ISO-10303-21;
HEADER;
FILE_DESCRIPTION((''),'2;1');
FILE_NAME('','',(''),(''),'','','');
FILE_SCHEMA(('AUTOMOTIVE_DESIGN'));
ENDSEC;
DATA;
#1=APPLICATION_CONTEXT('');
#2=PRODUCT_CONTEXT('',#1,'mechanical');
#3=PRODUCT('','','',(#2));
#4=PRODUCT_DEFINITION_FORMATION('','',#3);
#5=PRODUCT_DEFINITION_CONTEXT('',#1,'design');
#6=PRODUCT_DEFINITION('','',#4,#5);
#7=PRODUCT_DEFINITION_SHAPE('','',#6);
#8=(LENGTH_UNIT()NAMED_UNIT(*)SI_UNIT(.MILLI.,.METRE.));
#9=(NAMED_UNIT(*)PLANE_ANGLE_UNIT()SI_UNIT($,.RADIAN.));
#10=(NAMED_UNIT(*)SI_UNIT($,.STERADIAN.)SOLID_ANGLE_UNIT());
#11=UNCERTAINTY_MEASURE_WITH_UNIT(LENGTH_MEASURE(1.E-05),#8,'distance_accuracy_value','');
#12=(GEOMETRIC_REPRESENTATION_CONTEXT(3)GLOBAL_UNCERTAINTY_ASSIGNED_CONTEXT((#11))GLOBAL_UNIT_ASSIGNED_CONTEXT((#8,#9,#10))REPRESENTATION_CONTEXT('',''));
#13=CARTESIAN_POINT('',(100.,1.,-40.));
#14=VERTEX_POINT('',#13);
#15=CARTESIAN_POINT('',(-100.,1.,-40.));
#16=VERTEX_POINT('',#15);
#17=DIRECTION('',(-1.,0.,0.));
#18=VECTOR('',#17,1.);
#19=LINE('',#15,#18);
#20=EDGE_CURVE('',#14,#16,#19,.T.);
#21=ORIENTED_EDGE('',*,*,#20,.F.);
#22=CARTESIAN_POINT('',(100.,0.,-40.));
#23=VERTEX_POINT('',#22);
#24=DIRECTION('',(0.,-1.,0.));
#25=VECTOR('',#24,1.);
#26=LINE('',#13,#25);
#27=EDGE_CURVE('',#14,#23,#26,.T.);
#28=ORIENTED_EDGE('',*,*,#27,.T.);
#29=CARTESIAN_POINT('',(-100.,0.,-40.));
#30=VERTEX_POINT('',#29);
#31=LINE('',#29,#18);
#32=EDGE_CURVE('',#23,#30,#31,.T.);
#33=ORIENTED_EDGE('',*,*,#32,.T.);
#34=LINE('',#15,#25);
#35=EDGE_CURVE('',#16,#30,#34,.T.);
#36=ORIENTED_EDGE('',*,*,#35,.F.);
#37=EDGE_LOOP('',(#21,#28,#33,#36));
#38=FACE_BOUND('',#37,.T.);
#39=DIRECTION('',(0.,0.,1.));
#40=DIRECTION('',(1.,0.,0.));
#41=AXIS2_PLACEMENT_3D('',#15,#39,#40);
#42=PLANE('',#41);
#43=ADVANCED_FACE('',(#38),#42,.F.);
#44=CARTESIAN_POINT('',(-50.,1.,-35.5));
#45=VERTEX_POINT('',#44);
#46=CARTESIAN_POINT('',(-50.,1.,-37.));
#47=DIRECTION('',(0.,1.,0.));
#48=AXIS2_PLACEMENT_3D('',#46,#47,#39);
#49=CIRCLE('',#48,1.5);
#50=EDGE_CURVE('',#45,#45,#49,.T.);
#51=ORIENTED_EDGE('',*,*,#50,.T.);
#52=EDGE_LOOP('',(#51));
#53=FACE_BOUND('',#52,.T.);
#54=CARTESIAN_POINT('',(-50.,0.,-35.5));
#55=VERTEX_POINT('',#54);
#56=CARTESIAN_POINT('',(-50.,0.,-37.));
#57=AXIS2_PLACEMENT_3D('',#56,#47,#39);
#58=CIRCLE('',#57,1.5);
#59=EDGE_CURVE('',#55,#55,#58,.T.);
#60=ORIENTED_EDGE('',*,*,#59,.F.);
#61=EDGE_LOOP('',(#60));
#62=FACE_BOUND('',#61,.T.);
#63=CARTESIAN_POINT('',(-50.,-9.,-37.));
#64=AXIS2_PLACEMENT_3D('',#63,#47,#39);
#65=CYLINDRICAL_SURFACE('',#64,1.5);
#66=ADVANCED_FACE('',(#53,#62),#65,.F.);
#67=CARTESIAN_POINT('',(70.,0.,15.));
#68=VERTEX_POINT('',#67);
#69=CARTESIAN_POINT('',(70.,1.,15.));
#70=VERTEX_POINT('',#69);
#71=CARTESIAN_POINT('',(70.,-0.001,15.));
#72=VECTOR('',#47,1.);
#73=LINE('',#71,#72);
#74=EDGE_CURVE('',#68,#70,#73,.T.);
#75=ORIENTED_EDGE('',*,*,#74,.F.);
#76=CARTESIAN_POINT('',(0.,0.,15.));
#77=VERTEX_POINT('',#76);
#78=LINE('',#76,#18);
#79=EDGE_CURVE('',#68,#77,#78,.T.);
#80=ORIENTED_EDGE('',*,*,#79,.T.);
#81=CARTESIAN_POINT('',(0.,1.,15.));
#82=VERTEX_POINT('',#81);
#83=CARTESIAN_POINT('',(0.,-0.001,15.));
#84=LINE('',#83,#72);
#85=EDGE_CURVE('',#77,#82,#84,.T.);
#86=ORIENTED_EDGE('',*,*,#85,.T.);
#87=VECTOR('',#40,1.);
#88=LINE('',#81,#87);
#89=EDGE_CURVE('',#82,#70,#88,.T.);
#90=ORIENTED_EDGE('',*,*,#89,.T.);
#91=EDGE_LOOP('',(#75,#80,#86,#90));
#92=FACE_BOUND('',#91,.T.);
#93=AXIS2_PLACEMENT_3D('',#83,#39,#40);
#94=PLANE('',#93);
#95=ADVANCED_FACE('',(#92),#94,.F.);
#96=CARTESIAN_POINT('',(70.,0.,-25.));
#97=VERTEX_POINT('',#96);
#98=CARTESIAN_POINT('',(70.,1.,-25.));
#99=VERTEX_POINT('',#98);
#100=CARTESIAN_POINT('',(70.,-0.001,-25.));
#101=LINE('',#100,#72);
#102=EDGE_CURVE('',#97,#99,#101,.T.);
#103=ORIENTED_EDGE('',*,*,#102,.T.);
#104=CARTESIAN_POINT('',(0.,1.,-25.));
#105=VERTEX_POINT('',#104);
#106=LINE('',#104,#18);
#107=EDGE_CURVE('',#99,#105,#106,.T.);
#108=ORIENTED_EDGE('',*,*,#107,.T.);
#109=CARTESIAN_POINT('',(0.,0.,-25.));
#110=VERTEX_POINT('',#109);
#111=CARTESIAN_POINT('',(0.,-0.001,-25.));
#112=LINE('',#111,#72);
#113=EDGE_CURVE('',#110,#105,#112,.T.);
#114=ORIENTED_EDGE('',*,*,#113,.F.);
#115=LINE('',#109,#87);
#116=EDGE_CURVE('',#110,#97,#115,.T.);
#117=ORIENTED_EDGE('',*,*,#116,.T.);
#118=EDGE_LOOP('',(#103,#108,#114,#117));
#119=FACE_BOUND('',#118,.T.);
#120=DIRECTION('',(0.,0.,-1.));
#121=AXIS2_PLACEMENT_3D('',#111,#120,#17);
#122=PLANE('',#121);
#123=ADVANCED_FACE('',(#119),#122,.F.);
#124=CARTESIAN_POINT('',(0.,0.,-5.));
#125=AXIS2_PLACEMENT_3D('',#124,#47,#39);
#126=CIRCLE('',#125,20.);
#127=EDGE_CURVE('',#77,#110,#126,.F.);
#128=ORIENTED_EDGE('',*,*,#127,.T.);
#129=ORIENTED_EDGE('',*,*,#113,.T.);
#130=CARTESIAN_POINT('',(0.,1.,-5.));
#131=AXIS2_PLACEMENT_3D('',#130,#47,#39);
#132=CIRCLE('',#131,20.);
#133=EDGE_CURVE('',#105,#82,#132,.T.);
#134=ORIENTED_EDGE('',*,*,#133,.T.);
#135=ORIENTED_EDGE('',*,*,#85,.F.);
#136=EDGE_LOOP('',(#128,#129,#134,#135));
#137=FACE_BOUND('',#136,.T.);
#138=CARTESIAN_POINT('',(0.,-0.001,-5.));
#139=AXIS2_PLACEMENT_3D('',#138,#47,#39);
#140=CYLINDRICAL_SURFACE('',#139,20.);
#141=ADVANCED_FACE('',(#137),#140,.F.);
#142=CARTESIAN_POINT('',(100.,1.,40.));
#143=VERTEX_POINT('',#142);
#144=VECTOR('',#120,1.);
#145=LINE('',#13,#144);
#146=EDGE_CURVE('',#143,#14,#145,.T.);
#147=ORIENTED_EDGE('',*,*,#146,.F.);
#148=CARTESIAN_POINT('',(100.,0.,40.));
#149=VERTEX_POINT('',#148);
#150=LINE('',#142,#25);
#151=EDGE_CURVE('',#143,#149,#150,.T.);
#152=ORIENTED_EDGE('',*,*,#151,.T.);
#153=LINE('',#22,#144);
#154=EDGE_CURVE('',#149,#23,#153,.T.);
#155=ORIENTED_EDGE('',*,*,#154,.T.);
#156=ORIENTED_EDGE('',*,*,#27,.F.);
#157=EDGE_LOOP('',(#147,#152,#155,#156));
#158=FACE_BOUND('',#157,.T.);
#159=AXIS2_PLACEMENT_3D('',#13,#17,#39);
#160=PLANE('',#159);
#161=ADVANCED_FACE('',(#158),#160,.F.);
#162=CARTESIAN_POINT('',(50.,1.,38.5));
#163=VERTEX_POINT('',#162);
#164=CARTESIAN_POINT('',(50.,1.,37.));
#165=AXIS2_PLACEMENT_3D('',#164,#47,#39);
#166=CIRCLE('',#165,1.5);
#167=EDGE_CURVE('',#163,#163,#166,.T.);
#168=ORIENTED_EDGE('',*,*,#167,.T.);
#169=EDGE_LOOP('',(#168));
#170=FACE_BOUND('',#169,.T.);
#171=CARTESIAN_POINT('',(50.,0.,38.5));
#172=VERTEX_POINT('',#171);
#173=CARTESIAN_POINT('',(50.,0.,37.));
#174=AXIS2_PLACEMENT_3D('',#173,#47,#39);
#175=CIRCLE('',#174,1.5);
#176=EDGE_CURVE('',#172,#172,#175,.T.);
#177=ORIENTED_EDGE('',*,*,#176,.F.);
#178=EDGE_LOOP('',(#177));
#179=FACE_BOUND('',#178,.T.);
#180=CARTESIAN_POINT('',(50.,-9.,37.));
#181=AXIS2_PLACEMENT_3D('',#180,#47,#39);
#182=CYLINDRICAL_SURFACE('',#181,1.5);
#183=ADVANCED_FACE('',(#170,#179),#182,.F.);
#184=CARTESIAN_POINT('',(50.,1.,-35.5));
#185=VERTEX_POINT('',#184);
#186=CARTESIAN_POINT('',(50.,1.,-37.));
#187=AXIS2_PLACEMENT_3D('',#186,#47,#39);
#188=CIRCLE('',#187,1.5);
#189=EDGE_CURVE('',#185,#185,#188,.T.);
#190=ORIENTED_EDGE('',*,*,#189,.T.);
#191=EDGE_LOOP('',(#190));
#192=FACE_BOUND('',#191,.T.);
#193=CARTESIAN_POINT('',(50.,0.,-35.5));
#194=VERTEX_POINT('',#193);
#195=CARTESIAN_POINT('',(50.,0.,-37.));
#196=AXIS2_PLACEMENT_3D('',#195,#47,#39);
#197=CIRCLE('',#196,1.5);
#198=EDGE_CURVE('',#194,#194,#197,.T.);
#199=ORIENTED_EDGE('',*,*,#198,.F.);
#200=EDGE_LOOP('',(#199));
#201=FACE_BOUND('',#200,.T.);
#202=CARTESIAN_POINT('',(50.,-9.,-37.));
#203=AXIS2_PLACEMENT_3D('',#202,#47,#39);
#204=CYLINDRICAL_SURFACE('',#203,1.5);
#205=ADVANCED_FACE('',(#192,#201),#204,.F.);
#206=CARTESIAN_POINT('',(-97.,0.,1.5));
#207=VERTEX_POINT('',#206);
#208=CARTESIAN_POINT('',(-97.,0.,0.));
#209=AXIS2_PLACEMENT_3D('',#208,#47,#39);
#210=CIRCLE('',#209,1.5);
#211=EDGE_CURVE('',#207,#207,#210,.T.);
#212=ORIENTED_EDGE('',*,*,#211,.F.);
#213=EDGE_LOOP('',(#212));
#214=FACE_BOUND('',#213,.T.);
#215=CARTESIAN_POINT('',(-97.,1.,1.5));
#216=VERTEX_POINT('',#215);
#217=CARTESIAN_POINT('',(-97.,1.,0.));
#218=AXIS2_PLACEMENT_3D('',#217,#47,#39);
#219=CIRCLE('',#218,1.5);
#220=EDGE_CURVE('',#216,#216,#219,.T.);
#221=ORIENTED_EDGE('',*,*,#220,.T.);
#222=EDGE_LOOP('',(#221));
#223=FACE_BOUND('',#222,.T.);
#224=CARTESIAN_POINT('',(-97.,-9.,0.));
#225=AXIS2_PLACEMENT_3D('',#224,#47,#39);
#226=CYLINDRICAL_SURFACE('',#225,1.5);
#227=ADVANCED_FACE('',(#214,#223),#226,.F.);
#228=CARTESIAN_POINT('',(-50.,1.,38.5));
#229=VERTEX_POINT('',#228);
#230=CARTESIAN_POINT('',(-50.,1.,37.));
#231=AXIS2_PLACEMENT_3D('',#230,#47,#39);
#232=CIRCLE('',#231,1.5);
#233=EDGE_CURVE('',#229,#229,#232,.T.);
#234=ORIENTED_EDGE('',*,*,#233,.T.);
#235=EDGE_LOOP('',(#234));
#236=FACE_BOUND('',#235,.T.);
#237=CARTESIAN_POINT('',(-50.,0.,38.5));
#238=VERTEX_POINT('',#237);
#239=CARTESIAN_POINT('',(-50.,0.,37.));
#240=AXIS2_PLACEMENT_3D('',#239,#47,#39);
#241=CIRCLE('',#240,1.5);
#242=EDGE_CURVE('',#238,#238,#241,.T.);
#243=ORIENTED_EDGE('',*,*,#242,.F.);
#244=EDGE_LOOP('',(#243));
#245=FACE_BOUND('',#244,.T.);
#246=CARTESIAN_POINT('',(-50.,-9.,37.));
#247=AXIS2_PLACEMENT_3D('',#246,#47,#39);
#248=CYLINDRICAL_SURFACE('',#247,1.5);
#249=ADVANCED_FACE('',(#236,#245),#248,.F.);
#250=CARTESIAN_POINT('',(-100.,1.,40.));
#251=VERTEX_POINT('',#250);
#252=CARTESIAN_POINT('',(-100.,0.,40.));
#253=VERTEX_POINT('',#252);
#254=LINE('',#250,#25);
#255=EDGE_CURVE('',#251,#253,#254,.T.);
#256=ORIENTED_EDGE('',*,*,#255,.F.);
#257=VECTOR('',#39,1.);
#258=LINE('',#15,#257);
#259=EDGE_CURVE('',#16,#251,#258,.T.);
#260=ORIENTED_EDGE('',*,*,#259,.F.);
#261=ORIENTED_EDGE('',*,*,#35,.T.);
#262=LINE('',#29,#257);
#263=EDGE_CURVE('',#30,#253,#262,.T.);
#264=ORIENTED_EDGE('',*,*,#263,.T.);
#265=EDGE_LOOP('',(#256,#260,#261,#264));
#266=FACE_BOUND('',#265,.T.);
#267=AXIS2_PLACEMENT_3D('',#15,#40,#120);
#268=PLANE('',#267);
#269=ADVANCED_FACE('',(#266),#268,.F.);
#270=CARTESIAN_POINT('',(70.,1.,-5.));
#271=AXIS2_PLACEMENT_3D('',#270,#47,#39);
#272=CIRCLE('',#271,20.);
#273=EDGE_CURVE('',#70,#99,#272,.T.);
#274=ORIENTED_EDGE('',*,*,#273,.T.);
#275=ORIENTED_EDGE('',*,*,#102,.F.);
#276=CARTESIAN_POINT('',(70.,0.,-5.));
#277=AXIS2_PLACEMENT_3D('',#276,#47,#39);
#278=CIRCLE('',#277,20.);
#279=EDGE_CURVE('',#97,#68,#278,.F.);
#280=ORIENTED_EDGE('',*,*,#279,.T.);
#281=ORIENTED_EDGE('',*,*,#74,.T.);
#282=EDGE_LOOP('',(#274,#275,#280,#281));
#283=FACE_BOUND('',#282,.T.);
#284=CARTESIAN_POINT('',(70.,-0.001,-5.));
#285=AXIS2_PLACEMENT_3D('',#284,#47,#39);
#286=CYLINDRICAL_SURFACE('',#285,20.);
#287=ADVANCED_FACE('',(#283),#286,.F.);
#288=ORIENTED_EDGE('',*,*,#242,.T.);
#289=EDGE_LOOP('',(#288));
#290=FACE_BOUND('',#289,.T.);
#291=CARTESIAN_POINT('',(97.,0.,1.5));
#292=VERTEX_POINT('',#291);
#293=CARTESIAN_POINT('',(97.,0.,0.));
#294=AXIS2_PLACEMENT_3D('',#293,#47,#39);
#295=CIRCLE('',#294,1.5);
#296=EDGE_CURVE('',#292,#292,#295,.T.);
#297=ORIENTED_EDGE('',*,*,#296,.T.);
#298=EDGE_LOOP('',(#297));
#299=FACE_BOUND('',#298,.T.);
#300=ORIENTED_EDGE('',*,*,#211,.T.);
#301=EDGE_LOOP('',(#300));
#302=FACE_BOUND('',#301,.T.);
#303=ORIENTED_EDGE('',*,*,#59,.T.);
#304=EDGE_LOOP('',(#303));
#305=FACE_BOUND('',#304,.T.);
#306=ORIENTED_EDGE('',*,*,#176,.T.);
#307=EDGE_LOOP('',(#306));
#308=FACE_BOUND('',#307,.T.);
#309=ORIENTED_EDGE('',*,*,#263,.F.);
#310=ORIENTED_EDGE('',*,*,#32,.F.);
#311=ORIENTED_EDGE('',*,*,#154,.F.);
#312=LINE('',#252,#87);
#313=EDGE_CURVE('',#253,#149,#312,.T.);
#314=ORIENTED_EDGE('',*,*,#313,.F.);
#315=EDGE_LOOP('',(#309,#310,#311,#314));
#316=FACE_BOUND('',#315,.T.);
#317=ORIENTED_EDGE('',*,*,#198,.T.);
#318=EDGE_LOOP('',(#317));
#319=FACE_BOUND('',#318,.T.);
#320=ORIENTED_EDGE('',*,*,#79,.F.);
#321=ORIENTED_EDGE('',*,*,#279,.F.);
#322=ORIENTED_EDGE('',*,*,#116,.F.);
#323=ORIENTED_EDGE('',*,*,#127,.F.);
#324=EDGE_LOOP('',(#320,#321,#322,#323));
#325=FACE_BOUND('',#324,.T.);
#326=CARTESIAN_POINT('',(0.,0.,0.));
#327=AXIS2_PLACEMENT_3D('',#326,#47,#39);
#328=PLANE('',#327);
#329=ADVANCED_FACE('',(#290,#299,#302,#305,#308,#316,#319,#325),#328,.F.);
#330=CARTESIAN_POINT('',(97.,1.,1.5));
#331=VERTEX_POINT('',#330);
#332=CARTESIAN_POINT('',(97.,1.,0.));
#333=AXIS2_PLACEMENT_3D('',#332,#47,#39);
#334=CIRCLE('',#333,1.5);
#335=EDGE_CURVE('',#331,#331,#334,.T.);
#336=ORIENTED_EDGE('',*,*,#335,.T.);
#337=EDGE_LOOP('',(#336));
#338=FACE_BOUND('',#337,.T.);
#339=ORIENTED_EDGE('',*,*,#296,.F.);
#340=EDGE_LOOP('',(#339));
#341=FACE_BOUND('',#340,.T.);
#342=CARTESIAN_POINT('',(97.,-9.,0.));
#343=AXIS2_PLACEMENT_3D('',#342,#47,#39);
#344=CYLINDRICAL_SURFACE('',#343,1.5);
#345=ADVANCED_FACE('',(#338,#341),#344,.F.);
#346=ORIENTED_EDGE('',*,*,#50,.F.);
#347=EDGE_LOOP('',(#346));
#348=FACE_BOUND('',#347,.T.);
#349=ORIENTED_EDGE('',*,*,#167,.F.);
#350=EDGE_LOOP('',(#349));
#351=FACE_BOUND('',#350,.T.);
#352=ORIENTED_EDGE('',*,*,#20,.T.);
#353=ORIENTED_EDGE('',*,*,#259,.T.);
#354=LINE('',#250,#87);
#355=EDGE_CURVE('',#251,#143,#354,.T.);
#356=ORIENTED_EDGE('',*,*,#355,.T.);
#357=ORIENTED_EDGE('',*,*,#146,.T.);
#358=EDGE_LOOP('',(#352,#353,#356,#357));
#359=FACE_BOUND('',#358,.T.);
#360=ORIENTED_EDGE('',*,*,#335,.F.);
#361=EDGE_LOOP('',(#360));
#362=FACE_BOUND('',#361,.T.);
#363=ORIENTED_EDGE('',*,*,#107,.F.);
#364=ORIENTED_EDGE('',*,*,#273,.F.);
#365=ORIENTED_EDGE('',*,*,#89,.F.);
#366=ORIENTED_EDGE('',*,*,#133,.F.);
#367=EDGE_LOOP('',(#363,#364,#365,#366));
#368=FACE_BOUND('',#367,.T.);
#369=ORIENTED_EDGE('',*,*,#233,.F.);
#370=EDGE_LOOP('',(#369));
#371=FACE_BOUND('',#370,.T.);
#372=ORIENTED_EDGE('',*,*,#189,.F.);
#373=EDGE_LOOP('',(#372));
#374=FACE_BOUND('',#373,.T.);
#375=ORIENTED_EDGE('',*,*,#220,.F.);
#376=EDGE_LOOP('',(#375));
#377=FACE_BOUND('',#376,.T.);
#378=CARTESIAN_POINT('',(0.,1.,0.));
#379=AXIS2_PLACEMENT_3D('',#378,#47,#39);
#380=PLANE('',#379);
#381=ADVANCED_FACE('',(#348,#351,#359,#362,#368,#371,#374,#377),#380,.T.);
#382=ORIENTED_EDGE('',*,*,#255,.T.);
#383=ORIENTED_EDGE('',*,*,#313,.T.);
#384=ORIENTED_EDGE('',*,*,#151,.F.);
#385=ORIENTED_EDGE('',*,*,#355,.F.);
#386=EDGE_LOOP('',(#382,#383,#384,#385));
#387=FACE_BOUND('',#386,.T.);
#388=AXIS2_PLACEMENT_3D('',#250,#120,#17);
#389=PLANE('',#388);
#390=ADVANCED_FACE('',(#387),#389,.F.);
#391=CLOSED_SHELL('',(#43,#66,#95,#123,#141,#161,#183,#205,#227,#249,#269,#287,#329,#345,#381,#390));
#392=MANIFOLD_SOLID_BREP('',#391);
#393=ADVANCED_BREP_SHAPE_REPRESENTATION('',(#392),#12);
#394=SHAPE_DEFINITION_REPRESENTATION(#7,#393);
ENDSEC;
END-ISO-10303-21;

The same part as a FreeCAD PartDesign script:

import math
import FreeCAD as App
import Part
import Sketcher

V = App.Vector
Q = App.Units.Quantity

doc = App.newDocument("Part")
params = doc.addObject("Spreadsheet::Sheet", "Params")
for row, (alias, value) in enumerate([
    ("sketch1_width", "200 mm"),
    ("sketch1_height", "80 mm"),
    ("pad1_length", "1 mm"),
    ("sketch2_radius", "20 mm"),
    ("sketch2_width", "70 mm"),
    ("sketch3_diameter", "3 mm"),
    ("pocket2_length", "10 mm"),
], start=1):
    params.set(f"A{row}", alias)
    params.set(f"B{row}", "=" + value)
    params.setAlias(f"B{row}", alias)

body = doc.addObject("PartDesign::Body", "Body")

# Sketch on XZ plane
sketch1 = doc.addObject("Sketcher::SketchObject", "Sketch")
body.addObject(sketch1)
sketch1.AttachmentSupport = (doc.XZ_Plane, [""])
sketch1.MapMode = "FlatFace"
sketch1.addGeometry([
    Part.LineSegment(V(-100, -40, 0), V(-100, 40, 0)),
    Part.LineSegment(V(-100, 40, 0), V(100, 40, 0)),
    Part.LineSegment(V(100, 40, 0), V(100, -40, 0)),
    Part.LineSegment(V(100, -40, 0), V(-100, -40, 0)),
], False)
sketch1.addConstraint([
    Sketcher.Constraint("Coincident", 0, 2, 1, 1),
    Sketcher.Constraint("Coincident", 1, 2, 2, 1),
    Sketcher.Constraint("Coincident", 2, 2, 3, 1),
    Sketcher.Constraint("Coincident", 3, 2, 0, 1),
    Sketcher.Constraint("Vertical", 0),
    Sketcher.Constraint("Horizontal", 1),
    Sketcher.Constraint("Vertical", 2),
    Sketcher.Constraint("Horizontal", 3),
    Sketcher.Constraint("Symmetric", 0, 2, 2, 2, -1, 1),
    Sketcher.Constraint("DistanceX", 1, 1, 1, 2, Q("200 mm")),
    Sketcher.Constraint("DistanceY", 0, 1, 0, 2, Q("80 mm")),
])
sketch1.setExpression("Constraints[9]", "Params.sketch1_width")
sketch1.setExpression("Constraints[10]", "Params.sketch1_height")
pad1 = doc.addObject("PartDesign::Pad", "Pad")
body.addObject(pad1)
pad1.Profile = sketch1
pad1.setExpression("Length", "Params.pad1_length")
pad1.Reversed = True

# Sketch on XZ plane
sketch2 = doc.addObject("Sketcher::SketchObject", "Sketch001")
body.addObject(sketch2)
sketch2.AttachmentSupport = (doc.XZ_Plane, [""])
sketch2.MapMode = "FlatFace"
sketch2.AttachmentOffset = App.Placement(V(0, 0, -1), App.Rotation())
sketch2.addGeometry([
    Part.LineSegment(V(70, -25, 0), V(0, -25, 0)),
    Part.ArcOfCircle(Part.Circle(V(0, -5, 0), V(0, 0, 1), 20), math.radians(90), math.radians(270)),
    Part.LineSegment(V(0, 15, 0), V(70, 15, 0)),
    Part.ArcOfCircle(Part.Circle(V(70, -5, 0), V(0, 0, 1), 20), math.radians(-90), math.radians(90)),
], False)
sketch2.addConstraint([
    Sketcher.Constraint("Tangent", 0, 2, 1, 2),
    Sketcher.Constraint("Tangent", 1, 1, 2, 1),
    Sketcher.Constraint("Tangent", 2, 2, 3, 2),
    Sketcher.Constraint("Tangent", 3, 1, 0, 1),
    Sketcher.Constraint("Horizontal", 0),
    Sketcher.Constraint("Horizontal", 2),
    Sketcher.Constraint("PointOnObject", 1, 3, -2),
    Sketcher.Constraint("Radius", 1, Q("20 mm")),
    Sketcher.Constraint("DistanceX", 0, 2, 0, 1, Q("70 mm")),
    Sketcher.Constraint("DistanceY", 1, 3, -1, 1, Q("5 mm")),
])
sketch2.setExpression("Constraints[7]", "Params.sketch2_radius")
sketch2.setExpression("Constraints[8]", "Params.sketch2_width")
pocket1 = doc.addObject("PartDesign::Pocket", "Pocket")
body.addObject(pocket1)
pocket1.Profile = sketch2
pocket1.Type = "UpToFirst"
pocket1.Reversed = True

# Sketch on XZ plane
sketch3 = doc.addObject("Sketcher::SketchObject", "Sketch002")
body.addObject(sketch3)
sketch3.AttachmentSupport = (doc.XZ_Plane, [""])
sketch3.MapMode = "FlatFace"
sketch3.AttachmentOffset = App.Placement(V(0, 0, -1), App.Rotation())
sketch3.addGeometry([
    Part.Circle(V(-50, -37, 0), V(0, 0, 1), 1.5),  # 0
    Part.Circle(V(50, -37, 0), V(0, 0, 1), 1.5),  # 1
    Part.Circle(V(50, 37, 0), V(0, 0, 1), 1.5),  # 2
    Part.Circle(V(-50, 37, 0), V(0, 0, 1), 1.5),  # 3
    Part.Circle(V(-97, 0, 0), V(0, 0, 1), 1.5),  # 4
    Part.Circle(V(97, 0, 0), V(0, 0, 1), 1.5),  # 5
], False)
sketch3.addConstraint([
    Sketcher.Constraint("Equal", 0, 1),
    Sketcher.Constraint("Equal", 1, 2),
    Sketcher.Constraint("Equal", 2, 3),
    Sketcher.Constraint("Equal", 3, 4),
    Sketcher.Constraint("Equal", 4, 5),
    Sketcher.Constraint("Symmetric", 0, 3, 2, 3, -1, 1),
    Sketcher.Constraint("Symmetric", 1, 3, 3, 3, -1, 1),
    Sketcher.Constraint("Symmetric", 4, 3, 5, 3, -1, 1),
    Sketcher.Constraint("Symmetric", 0, 3, 1, 3, -2),
    Sketcher.Constraint("PointOnObject", 4, 3, -1),
    Sketcher.Constraint("Diameter", 0, Q("3 mm")),
    Sketcher.Constraint("DistanceX", 0, 3, -1, 1, Q("50 mm")),
    Sketcher.Constraint("DistanceY", 0, 3, -1, 1, Q("37 mm")),
    Sketcher.Constraint("DistanceX", 4, 3, -1, 1, Q("97 mm")),
])
sketch3.setExpression("Constraints[10]", "Params.sketch3_diameter")
pocket2 = doc.addObject("PartDesign::Pocket", "Pocket001")
body.addObject(pocket2)
pocket2.Profile = sketch3
pocket2.setExpression("Length", "Params.pocket2_length")
pocket2.Reversed = True

doc.recompute()
